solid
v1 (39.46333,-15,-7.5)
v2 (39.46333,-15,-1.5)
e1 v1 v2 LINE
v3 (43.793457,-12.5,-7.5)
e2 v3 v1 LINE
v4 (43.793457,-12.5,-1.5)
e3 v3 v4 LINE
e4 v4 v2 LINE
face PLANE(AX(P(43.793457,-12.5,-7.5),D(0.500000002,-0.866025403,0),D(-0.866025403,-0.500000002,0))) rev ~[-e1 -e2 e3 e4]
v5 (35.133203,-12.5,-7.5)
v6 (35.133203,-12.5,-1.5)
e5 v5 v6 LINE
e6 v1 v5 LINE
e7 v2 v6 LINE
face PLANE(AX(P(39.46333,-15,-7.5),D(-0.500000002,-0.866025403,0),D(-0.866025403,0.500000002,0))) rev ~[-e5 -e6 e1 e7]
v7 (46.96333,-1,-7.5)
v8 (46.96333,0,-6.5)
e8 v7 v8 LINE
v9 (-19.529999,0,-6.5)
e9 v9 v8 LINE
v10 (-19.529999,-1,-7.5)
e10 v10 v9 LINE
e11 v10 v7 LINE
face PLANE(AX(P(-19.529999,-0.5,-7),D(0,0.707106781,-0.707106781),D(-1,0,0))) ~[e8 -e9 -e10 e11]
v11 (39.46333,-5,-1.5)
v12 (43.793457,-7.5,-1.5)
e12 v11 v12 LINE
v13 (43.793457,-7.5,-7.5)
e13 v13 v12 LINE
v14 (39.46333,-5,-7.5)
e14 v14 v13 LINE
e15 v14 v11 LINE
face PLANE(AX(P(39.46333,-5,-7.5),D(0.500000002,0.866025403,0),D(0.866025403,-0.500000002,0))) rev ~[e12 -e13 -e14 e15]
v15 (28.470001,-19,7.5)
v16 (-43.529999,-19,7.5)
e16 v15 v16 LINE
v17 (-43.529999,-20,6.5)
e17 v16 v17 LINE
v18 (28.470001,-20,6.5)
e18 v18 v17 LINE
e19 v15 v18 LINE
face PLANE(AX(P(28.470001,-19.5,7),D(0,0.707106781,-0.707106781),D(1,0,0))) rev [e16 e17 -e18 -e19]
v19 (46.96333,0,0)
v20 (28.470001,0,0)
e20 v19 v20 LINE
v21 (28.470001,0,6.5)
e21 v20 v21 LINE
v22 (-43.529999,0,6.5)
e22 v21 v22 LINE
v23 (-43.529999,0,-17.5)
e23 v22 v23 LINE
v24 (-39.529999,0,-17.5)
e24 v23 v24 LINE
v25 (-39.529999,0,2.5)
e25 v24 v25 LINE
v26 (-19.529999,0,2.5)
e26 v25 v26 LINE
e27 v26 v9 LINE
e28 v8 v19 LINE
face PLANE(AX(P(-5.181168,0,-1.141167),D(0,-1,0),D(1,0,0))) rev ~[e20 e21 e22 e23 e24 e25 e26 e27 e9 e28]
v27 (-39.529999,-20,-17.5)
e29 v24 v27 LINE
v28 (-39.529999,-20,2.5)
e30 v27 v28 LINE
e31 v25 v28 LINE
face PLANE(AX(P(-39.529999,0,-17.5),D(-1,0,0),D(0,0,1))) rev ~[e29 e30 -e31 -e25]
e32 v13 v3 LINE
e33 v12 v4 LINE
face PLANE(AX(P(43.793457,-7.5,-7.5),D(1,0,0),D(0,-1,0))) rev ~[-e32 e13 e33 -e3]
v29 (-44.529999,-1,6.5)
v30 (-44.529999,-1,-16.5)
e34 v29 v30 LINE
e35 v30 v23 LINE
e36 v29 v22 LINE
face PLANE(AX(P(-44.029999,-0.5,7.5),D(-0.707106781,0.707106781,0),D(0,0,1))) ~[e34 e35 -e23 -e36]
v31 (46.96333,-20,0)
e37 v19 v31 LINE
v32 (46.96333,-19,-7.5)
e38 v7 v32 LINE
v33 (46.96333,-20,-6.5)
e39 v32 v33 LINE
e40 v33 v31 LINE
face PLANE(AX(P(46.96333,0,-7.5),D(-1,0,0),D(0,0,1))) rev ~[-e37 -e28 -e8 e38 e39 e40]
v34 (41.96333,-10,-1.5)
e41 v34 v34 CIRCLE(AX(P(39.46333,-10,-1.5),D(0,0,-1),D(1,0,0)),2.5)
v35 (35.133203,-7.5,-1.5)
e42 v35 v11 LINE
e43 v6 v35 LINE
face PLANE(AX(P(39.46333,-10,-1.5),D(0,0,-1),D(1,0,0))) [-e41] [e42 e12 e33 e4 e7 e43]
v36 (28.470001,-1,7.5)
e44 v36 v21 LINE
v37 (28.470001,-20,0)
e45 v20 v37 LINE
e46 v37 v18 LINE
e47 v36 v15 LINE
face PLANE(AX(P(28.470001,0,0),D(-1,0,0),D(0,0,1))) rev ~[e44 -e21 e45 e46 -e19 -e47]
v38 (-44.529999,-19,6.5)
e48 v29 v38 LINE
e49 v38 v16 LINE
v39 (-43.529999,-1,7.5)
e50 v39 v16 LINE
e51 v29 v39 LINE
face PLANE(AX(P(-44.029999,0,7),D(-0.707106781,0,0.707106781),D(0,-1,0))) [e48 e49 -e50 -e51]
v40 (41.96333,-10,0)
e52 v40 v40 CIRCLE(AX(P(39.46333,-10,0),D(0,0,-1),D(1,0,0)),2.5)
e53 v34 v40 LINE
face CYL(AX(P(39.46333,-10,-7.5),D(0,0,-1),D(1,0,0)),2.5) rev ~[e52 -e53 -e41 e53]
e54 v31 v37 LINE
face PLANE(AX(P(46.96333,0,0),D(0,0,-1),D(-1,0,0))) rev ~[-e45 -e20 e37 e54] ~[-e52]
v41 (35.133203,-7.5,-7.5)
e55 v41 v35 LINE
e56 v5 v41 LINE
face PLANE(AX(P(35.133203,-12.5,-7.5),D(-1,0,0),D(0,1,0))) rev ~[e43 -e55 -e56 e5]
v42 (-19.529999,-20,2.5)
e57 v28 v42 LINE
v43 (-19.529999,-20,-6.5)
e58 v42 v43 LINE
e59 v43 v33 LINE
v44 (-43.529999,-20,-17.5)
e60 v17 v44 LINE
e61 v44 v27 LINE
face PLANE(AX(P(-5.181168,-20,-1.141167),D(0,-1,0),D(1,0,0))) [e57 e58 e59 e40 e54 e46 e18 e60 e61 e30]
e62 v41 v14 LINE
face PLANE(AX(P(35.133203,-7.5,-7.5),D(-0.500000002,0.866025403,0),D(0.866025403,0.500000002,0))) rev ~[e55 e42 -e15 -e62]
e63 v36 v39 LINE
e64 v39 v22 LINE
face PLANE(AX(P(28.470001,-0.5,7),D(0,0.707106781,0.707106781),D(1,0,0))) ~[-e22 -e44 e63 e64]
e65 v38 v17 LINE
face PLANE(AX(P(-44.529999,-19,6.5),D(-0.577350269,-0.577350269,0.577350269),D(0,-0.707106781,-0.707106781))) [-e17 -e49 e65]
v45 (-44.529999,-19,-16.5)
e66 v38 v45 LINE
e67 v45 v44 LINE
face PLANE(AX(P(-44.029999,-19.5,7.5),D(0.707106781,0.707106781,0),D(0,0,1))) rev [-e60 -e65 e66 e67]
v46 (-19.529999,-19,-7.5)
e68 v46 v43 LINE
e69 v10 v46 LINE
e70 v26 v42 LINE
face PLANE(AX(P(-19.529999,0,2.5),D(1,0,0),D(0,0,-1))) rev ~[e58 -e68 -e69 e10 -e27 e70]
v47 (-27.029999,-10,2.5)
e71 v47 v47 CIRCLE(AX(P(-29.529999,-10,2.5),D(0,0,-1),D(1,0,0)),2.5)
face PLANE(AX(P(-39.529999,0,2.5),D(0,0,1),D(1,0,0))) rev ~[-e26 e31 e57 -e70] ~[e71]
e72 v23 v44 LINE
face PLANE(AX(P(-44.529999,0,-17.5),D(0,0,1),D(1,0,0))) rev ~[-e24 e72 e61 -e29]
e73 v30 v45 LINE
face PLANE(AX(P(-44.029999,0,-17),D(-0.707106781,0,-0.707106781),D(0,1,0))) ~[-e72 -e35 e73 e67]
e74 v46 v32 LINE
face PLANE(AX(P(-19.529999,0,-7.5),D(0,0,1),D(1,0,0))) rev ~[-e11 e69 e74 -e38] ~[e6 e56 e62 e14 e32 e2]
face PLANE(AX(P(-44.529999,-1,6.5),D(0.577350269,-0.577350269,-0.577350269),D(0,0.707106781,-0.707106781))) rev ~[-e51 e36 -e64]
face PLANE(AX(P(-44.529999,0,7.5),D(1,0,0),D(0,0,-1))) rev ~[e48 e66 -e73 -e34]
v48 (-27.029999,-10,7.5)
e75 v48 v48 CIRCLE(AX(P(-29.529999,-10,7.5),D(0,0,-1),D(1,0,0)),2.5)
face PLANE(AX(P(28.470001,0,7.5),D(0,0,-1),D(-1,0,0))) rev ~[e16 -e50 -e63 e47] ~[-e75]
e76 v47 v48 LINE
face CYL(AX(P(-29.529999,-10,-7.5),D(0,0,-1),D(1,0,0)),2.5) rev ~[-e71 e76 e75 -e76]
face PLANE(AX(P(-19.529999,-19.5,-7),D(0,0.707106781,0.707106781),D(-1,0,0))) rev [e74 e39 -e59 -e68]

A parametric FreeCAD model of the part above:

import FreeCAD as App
import Part
import Sketcher

V = App.Vector
Q = App.Units.Quantity


def edges_at(feature, points):
    """Names of the edges that pass closest to the given points."""
    edges = feature.Shape.Edges
    near = lambda p: min(range(len(edges)), key=lambda i: edges[i].distToShape(Part.Vertex(*p))[0])
    return sorted({f"Edge{near(p) + 1}" for p in points})


def add_polygon(sketch, points):
    """Adds a closed chain of lines whose ends are joined by coincident constraints."""
    first, n = sketch.GeometryCount, len(points)
    for a, b in zip(points, points[1:] + points[:1]):
        sketch.addGeometry(Part.LineSegment(App.Vector(*a, 0), App.Vector(*b, 0)), False)
    for i in range(n):
        sketch.addConstraint(Sketcher.Constraint("Coincident", first + i, 2, first + (i + 1) % n, 1))

doc = App.newDocument("Part")
body = doc.addObject("PartDesign::Body", "Body")

# Sketch on XZ plane
sketch1 = body.newObject("Sketcher::SketchObject", "Sketch")
sketch1.AttachmentSupport = (doc.getObject("XZ_Plane"), [""])
sketch1.MapMode = "FlatFace"
add_polygon(sketch1, [(-45, 8), (-45, -18), (-40, -18), (-40, 2), (-20, 2), (-20, -8), (47, -8), (47, 0), (28, 0), (28, 8)])  # lines 0-9
sketch1.addConstraint([
    Sketcher.Constraint("Vertical", 0),
    Sketcher.Constraint("Horizontal", 1),
    Sketcher.Constraint("Vertical", 2),
    Sketcher.Constraint("Horizontal", 3),
    Sketcher.Constraint("Vertical", 4),
    Sketcher.Constraint("Horizontal", 5),
    Sketcher.Constraint("Vertical", 6),
    Sketcher.Constraint("Horizontal", 7),
    Sketcher.Constraint("Vertical", 8),
    Sketcher.Constraint("Horizontal", 9),
    Sketcher.Constraint("PointOnObject", 6, 2, -1),
    Sketcher.Constraint("Equal", 3, 2),
    Sketcher.Constraint("Equal", 6, 8),
    Sketcher.Constraint("DistanceX", 1, 1, 1, 2, 5.0),
    Sketcher.Constraint("DistanceX", 3, 1, 3, 2, 20.0),
    Sketcher.Constraint("DistanceX", 9, 2, 9, 1, 73.0),
    Sketcher.Constraint("DistanceY", 0, 2, 0, 1, 25.0),
    Sketcher.Constraint("DistanceY", 4, 2, 4, 1, 10.0),
    Sketcher.Constraint("DistanceX", 0, 2, -1, 1, 44.529999),
    Sketcher.Constraint("DistanceX", 5, 1, 5, 2, 66.493329),
])
pad1 = body.newObject("PartDesign::Pad", "Pad")
pad1.Profile = sketch1
pad1.Length = 20
doc.recompute()

chamfer = body.newObject("PartDesign::Chamfer", "Chamfer")
chamfer.Base = (pad1, edges_at(pad1, [
    (-8.03, -20, 7.5),
    (-8.03, 0, 7.5),
    (-44.53, -10, 7.5),
    (-44.53, -20, -5),
    (-44.53, 0, -5),
    (-44.53, -10, -17.5),
    (13.717, 0, -7.5),
    (13.717, -20, -7.5),
]))
chamfer.Size = 1

# Sketch on XY plane
sketch2 = body.newObject("Sketcher::SketchObject", "Sketch001")
sketch2.AttachmentSupport = (doc.getObject("XY_Plane"), [""])
sketch2.MapMode = "FlatFace"
sketch2.AttachmentOffset = App.Placement(V(0, 0, -7.5), App.Rotation())
sketch2.addGeometry([
    Part.Circle(V(-29.5, -10, 0), V(0, 0, 1), 2.5),
    Part.Circle(V(39.5, -10, 0), V(0, 0, 1), 2.5),
], False)
sketch2.addConstraint([
    Sketcher.Constraint("Equal", 0, 1),
    Sketcher.Constraint("Horizontal", 0, 3, 1, 3),
    Sketcher.Constraint("Diameter", 0, 5.0),
    Sketcher.Constraint("DistanceY", 0, 3, -1, 1, 10.0),
    Sketcher.Constraint("DistanceX", 0, 3, -1, 1, 29.529999),
    Sketcher.Constraint("DistanceX", -1, 1, 1, 3, 39.46333),
])
pocket1 = body.newObject("PartDesign::Pocket", "Pocket")
pocket1.Profile = sketch2
pocket1.Length = 25
pocket1.Reversed = True

# Sketch on XY plane
sketch3 = body.newObject("Sketcher::SketchObject", "Sketch002")
sketch3.AttachmentSupport = (doc.getObject("XY_Plane"), [""])
sketch3.MapMode = "FlatFace"
sketch3.AttachmentOffset = App.Placement(V(0, 0, -7.5), App.Rotation())
add_polygon(sketch3, [(35.1, -12.5), (35.1, -7.5), (39.5, -5), (43.8, -7.5), (43.8, -12.5), (39.5, -15)])  # lines 0-5
sketch3.addConstraint([
    Sketcher.Constraint("Vertical", 0),
    Sketcher.Constraint("Vertical", 3),
    Sketcher.Constraint("Parallel", 1, 4),
    Sketcher.Constraint("Parallel", 2, 5),
    Sketcher.Constraint("Horizontal", 0, 2, 2, 2),
    Sketcher.Constraint("Horizontal", 3, 2, 5, 2),
    Sketcher.Constraint("Vertical", 1, 2, 4, 2),
    Sketcher.Constraint("DistanceY", 0, 1, 0, 2, 5.0),
    Sketcher.Constraint("Angle", 1, Q("30 deg")),
    Sketcher.Constraint("Distance", 1, 5.0),
    Sketcher.Constraint("DistanceY", 1, 2, -1, 1, 5.0),
    Sketcher.Constraint("DistanceX", -1, 1, 1, 2, 39.46333),
])
pocket2 = body.newObject("PartDesign::Pocket", "Pocket001")
pocket2.Profile = sketch3
pocket2.Length = 6
pocket2.Reversed = True

doc.recompute()
